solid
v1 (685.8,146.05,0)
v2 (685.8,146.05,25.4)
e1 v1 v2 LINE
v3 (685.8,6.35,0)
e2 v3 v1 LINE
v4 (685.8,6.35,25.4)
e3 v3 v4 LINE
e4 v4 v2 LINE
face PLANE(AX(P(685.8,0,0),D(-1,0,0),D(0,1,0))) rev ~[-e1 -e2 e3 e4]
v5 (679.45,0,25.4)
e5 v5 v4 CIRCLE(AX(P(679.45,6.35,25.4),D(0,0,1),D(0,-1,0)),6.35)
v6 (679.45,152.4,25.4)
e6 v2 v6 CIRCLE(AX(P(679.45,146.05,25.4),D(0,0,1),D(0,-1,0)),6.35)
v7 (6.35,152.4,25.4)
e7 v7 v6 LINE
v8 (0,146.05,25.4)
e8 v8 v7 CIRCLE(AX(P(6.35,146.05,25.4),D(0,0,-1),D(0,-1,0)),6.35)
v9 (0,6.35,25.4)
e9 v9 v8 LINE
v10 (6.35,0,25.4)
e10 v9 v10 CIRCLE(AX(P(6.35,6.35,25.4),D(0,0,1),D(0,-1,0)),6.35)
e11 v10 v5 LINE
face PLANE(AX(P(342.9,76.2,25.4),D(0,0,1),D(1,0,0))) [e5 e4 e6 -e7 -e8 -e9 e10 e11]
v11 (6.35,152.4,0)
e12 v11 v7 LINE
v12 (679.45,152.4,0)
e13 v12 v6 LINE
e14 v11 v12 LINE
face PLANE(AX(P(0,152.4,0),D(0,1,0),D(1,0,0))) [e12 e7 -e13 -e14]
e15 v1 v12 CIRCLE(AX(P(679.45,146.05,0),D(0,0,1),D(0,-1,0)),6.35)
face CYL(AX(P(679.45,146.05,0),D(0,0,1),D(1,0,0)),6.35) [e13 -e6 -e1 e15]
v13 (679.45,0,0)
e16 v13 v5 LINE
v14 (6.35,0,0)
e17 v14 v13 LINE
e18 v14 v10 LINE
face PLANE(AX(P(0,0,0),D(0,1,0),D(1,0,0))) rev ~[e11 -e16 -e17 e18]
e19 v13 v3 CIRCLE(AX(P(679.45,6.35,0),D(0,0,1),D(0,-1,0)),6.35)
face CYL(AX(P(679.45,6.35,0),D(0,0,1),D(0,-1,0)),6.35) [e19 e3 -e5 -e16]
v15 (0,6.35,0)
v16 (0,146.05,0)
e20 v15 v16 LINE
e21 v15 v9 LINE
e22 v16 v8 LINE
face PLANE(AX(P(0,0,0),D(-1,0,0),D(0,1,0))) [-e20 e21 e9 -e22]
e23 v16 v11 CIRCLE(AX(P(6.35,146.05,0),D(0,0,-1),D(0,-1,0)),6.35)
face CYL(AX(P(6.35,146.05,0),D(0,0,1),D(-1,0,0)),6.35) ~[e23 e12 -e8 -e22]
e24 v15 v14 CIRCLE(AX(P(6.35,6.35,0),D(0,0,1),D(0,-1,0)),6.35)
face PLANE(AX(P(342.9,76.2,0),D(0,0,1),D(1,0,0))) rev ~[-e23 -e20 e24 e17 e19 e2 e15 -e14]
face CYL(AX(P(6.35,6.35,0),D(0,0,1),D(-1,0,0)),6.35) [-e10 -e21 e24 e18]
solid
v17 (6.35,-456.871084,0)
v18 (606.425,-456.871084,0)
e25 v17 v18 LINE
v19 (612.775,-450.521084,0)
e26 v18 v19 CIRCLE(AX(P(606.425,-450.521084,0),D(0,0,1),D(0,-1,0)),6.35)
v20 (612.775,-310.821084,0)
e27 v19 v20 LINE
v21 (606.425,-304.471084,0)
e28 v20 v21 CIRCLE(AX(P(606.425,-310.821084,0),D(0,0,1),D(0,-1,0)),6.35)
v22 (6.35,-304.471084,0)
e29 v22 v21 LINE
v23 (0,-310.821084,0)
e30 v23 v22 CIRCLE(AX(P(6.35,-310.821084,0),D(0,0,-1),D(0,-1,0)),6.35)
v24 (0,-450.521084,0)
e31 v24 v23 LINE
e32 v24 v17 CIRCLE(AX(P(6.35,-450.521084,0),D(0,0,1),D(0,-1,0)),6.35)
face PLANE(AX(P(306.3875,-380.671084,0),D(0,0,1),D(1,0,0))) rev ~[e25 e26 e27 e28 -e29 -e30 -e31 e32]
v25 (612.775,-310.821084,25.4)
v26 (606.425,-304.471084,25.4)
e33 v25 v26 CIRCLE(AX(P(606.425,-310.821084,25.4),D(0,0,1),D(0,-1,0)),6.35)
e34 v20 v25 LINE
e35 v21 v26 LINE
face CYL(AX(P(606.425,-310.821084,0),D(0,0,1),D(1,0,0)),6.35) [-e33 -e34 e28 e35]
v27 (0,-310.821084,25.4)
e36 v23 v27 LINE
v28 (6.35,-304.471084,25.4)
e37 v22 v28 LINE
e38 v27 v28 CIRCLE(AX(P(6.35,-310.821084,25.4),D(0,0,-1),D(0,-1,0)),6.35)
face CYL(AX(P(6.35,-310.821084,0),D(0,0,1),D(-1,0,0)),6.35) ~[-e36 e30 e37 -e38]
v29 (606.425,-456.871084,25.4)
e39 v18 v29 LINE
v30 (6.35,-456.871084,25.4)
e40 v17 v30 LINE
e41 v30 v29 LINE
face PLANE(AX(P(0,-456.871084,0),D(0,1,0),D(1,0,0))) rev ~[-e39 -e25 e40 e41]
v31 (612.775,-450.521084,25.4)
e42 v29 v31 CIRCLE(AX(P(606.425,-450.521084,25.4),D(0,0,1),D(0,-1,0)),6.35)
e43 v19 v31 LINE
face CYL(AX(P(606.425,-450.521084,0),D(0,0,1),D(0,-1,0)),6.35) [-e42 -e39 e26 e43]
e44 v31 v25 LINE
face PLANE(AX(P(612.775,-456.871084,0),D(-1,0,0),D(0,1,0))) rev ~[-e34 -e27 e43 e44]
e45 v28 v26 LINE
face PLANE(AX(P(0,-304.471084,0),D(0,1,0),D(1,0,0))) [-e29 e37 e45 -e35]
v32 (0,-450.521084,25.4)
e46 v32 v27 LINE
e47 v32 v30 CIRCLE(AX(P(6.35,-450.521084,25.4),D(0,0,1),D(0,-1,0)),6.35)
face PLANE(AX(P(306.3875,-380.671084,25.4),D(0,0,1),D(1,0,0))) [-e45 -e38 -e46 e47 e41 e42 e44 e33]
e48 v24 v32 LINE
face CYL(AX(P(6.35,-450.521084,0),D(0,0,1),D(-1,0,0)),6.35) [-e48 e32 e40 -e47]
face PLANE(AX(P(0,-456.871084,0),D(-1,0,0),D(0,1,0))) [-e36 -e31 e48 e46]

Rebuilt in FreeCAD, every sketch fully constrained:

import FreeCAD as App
import Part
import Sketcher
from FreeCAD import Vector
Q = App.Units.Quantity


def edges_at(feature, points):
    """Names of the edges that pass closest to the given points."""
    edges = feature.Shape.Edges
    near = lambda p: min(range(len(edges)), key=lambda i: edges[i].distToShape(Part.Vertex(*p))[0])
    return sorted({f"Edge{near(p) + 1}" for p in points})


def add_polygon(sketch, points):
    """Adds a closed chain of lines whose ends are joined by coincident constraints."""
    first, n = sketch.GeometryCount, len(points)
    for a, b in zip(points, points[1:] + points[:1]):
        sketch.addGeometry(Part.LineSegment(App.Vector(*a, 0), App.Vector(*b, 0)), False)
    for i in range(n):
        sketch.addConstraint(Sketcher.Constraint("Coincident", first + i, 2, first + (i + 1) % n, 1))

doc = App.newDocument("Part")
body = doc.addObject("PartDesign::Body", "Body")
body.AllowCompound = True

sketch1 = doc.addObject("Sketcher::SketchObject", "Sketch")
body.addObject(sketch1)
sketch1.AttachmentSupport = (doc.XY_Plane, [""])
sketch1.MapMode = "FlatFace"
add_polygon(sketch1, [(0, 152.4), (0, 0), (685.8, 0), (685.8, 152.4)])
add_polygon(sketch1, [(0, -304.471084), (0, -456.871084), (612.775, -456.871084), (612.775, -304.471084)])
sketch1.addConstraint([
    Sketcher.Constraint("Vertical", 0),
    Sketcher.Constraint("Horizontal", 1),
    Sketcher.Constraint("Vertical", 2),
    Sketcher.Constraint("Horizontal", 3),
    Sketcher.Constraint("Vertical", 4),
    Sketcher.Constraint("Horizontal", 5),
    Sketcher.Constraint("Vertical", 6),
    Sketcher.Constraint("Horizontal", 7),
    Sketcher.Constraint("Coincident", 0, 2, -1, 1),
    Sketcher.Constraint("PointOnObject", 4, 2, -2),
    Sketcher.Constraint("Equal", 2, 4),
    Sketcher.Constraint("DistanceX", 1, 1, 1, 2, Q("27 in")),
    Sketcher.Constraint("DistanceY", 0, 2, 0, 1, Q("6 in")),
    Sketcher.Constraint("DistanceX", 5, 1, 5, 2, Q("24.125 in")),
    Sketcher.Constraint("DistanceY", 4, 2, -1, 1, Q("456.871084 mm")),
])
pad1 = doc.addObject("PartDesign::Pad", "Pad")
body.addObject(pad1)
pad1.Profile = sketch1
pad1.Length = Q("1 in")
doc.recompute()

fillet = doc.addObject("PartDesign::Fillet", "Fillet")
body.addObject(fillet)
fillet.Base = (pad1, edges_at(pad1, [
    (0, 152.4, 12.7),
    (0, 0, 12.7),
    (685.8, 0, 12.7),
    (685.8, 152.4, 12.7),
    (612.775, -456.871, 12.7),
    (0, -456.871, 12.7),
    (0, -304.471, 12.7),
    (612.775, -304.471, 12.7),
]))
fillet.Radius = Q("0.25 in")

doc.recompute()
